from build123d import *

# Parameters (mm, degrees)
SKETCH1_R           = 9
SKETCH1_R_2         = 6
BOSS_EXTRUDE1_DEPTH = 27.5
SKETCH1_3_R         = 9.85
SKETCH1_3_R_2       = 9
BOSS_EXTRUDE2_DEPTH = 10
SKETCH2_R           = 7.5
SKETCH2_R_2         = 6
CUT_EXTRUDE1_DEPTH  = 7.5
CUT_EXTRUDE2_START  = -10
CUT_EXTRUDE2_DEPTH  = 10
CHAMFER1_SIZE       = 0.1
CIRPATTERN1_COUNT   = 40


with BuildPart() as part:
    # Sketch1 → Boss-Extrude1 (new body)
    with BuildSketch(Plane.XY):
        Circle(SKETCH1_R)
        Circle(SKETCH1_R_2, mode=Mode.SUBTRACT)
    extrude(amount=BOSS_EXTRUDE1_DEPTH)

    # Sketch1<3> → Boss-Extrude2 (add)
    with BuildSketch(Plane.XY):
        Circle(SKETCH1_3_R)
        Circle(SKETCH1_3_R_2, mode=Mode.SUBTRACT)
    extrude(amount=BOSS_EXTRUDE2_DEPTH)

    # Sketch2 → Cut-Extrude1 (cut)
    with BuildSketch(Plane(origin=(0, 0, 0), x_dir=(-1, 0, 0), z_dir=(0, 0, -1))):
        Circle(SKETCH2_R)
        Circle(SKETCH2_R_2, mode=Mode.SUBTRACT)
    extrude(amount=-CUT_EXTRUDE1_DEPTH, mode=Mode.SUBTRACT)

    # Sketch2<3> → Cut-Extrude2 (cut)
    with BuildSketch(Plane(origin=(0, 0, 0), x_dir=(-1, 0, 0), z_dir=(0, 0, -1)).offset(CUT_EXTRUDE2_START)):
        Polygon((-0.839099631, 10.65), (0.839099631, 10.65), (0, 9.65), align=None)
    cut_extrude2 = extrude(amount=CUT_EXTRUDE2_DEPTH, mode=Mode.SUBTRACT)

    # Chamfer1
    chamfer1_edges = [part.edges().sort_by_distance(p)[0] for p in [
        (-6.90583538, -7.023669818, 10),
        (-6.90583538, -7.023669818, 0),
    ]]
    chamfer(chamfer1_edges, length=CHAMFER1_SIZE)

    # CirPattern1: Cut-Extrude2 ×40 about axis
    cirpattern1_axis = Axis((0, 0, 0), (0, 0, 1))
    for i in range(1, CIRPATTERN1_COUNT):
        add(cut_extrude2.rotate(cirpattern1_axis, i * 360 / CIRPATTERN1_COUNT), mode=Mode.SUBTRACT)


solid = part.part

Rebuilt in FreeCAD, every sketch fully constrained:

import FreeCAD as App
import Part
import Sketcher
Q = App.Units.Quantity


def edges_at(feature, points):
    """Names of the edges that pass closest to the given points."""
    edges = feature.Shape.Edges
    near = lambda p: min(range(len(edges)), key=lambda i: edges[i].distToShape(Part.Vertex(*p))[0])
    return sorted({f"Edge{near(p) + 1}" for p in points})

doc = App.newDocument("Part")
body = doc.addObject("PartDesign::Body", "Body")

sketch1 = body.newObject("Sketcher::SketchObject", "Sketch")
sketch1.AttachmentSupport = (doc.getObject("XY_Plane"), [""])
sketch1.MapMode = "FlatFace"
sketch1.addGeometry([
    Part.Circle(App.Vector(0, 0, 0), App.Vector(0, 0, 1), 9),
    Part.Circle(App.Vector(0, 0, 0), App.Vector(0, 0, 1), 6),
], False)
sketch1.addConstraint([
    Sketcher.Constraint("Coincident", 0, 3, -1, 1),
    Sketcher.Constraint("Coincident", 1, 3, -1, 1),
    Sketcher.Constraint("Diameter", 0, Q("18 mm")),
    Sketcher.Constraint("Diameter", 1, Q("12 mm")),
])
pad1 = body.newObject("PartDesign::Pad", "Pad")
pad1.Profile = sketch1
pad1.Length = 27.5

sketch2 = body.newObject("Sketcher::SketchObject", "Sketch001")
sketch2.AttachmentSupport = (doc.getObject("XY_Plane"), [""])
sketch2.MapMode = "FlatFace"
sketch2.addGeometry([
    Part.Circle(App.Vector(0, 0, 0), App.Vector(0, 0, 1), 10),
    Part.Circle(App.Vector(0, 0, 0), App.Vector(0, 0, 1), 9),
], False)
sketch2.addConstraint([
    Sketcher.Constraint("Coincident", 0, 3, -1, 1),
    Sketcher.Constraint("Coincident", 1, 3, -1, 1),
    Sketcher.Constraint("Diameter", 1, Q("18 mm")),
    Sketcher.Constraint("Diameter", 0, Q("19.7 mm")),
])
pad2 = body.newObject("PartDesign::Pad", "Pad001")
pad2.Profile = sketch2
pad2.Length = 10

sketch3 = body.newObject("Sketcher::SketchObject", "Sketch002")
sketch3.AttachmentSupport = (doc.getObject("XY_Plane"), [""])
sketch3.MapMode = "FlatFace"
sketch3.addGeometry([
    Part.Circle(App.Vector(0, 0, 0), App.Vector(0, 0, 1), 8),
    Part.Circle(App.Vector(0, 0, 0), App.Vector(0, 0, 1), 6),
], False)
sketch3.addConstraint([
    Sketcher.Constraint("Coincident", 0, 3, -1, 1),
    Sketcher.Constraint("Coincident", 1, 3, -1, 1),
    Sketcher.Constraint("Diameter", 0, Q("15 mm")),
    Sketcher.Constraint("Diameter", 1, Q("12 mm")),
])
pocket1 = body.newObject("PartDesign::Pocket", "Pocket")
pocket1.Profile = sketch3
pocket1.Length = 7.5
pocket1.Reversed = True

sketch4 = body.newObject("Sketcher::SketchObject", "Sketch003")
sketch4.AttachmentSupport = (doc.getObject("XY_Plane"), [""])
sketch4.MapMode = "FlatFace"
sketch4.AttachmentOffset = App.Placement(App.Vector(0, 0, 10), App.Rotation())
sketch4.addGeometry([
    Part.LineSegment(App.Vector(-0.8, 10.7, 0), App.Vector(0.8, 10.7, 0)),
    Part.LineSegment(App.Vector(0.8, 10.7, 0), App.Vector(0, 9.7, 0)),
    Part.LineSegment(App.Vector(0, 9.7, 0), App.Vector(-0.8, 10.7, 0)),
], False)
sketch4.addConstraint([
    Sketcher.Constraint("Coincident", 0, 2, 1, 1),
    Sketcher.Constraint("Coincident", 1, 2, 2, 1),
    Sketcher.Constraint("Coincident", 2, 2, 0, 1),
    Sketcher.Constraint("Horizontal", 0),
    Sketcher.Constraint("PointOnObject", 1, 2, -2),
    Sketcher.Constraint("Equal", 1, 2),
    Sketcher.Constraint("Angle", 1, Q("-130 deg")),
    Sketcher.Constraint("DistanceY", 1, 2, 0, 2, Q("1 mm")),
    Sketcher.Constraint("DistanceY", -1, 1, 0, 2, Q("10.65 mm")),
])
pocket2 = body.newObject("PartDesign::Pocket", "Pocket001")
pocket2.Profile = sketch4
pocket2.Length = 10
doc.recompute()

chamfer = body.newObject("PartDesign::Chamfer", "Chamfer")
chamfer.Base = (pocket2, edges_at(pocket2, [(-6.906, -7.024, 10), (-6.906, -7.024, 0)]))
chamfer.Size = 0.1
doc.recompute()

polarpattern = body.newObject("PartDesign::PolarPattern", "PolarPattern")
polarpattern.Originals = [pocket2]
polarpattern.Axis = (doc.getObject("Z_Axis"), [""])
polarpattern.Angle = 360
polarpattern.Occurrences = 40
body.Tip = polarpattern

doc.recompute()
